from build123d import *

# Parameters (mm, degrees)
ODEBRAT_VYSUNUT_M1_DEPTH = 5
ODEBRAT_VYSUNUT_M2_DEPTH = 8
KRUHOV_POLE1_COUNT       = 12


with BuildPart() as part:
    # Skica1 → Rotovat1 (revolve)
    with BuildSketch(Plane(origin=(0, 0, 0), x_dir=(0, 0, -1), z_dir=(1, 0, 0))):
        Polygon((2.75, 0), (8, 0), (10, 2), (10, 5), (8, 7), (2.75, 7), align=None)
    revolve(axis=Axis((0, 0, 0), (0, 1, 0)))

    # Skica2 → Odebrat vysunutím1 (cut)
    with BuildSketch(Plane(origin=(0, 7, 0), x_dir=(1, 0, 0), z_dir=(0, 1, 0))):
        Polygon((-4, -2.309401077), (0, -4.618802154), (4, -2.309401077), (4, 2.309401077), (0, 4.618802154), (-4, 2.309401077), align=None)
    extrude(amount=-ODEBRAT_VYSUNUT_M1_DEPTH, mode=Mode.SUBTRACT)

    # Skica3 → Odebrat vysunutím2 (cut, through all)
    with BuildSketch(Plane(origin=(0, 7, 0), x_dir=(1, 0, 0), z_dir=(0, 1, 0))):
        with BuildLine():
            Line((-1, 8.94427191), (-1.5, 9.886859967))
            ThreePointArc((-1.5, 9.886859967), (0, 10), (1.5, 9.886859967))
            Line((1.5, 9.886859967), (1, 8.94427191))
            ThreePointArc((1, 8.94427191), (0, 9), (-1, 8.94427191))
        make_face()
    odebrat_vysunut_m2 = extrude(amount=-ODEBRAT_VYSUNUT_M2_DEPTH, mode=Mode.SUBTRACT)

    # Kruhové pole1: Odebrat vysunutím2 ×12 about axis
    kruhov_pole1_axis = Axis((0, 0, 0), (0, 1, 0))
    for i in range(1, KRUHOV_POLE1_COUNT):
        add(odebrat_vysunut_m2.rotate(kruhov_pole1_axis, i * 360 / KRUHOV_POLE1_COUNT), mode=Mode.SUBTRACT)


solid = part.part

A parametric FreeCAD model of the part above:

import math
import FreeCAD as App
import Part
import Sketcher
Q = App.Units.Quantity


def add_polygon(sketch, points):
    """Adds a closed chain of lines whose ends are joined by coincident constraints."""
    first, n = sketch.GeometryCount, len(points)
    for a, b in zip(points, points[1:] + points[:1]):
        sketch.addGeometry(Part.LineSegment(App.Vector(*a, 0), App.Vector(*b, 0)), False)
    for i in range(n):
        sketch.addConstraint(Sketcher.Constraint("Coincident", first + i, 2, first + (i + 1) % n, 1))

doc = App.newDocument("Part")
body = doc.addObject("PartDesign::Body", "Body")

# Sketch on YZ plane
sketch1 = body.newObject("Sketcher::SketchObject", "Sketch")
sketch1.AttachmentSupport = (doc.getObject("YZ_Plane"), [""])
sketch1.MapMode = "FlatFace"
add_polygon(sketch1, [(0, -2.75), (0, -8), (2, -10), (5, -10), (7, -8), (7, -2.75)])  # lines 0-5
sketch1.addConstraint([
    Sketcher.Constraint("Vertical", 0),
    Sketcher.Constraint("Horizontal", 2),
    Sketcher.Constraint("Vertical", 4),
    Sketcher.Constraint("Horizontal", 5),
    Sketcher.Constraint("PointOnObject", 0, 2, -2),
    Sketcher.Constraint("Perpendicular", 1, 3),
    Sketcher.Constraint("Horizontal", 0, 2, 3, 2),
    Sketcher.Constraint("Equal", 1, 3),
    Sketcher.Constraint("DistanceX", 2, 1, 2, 2, Q("3 mm")),
    Sketcher.Constraint("DistanceX", 5, 2, 5, 1, Q("7 mm")),
    Sketcher.Constraint("DistanceY", 0, 2, -1, 1, Q("8 mm")),
    Sketcher.Constraint("DistanceY", 0, 2, 0, 1, Q("5.25 mm")),
])
revolution = body.newObject("PartDesign::Revolution", "Revolution")
revolution.Profile = sketch1
revolution.ReferenceAxis = (sketch1, ["H_Axis"])
revolution.Angle = 360

# Sketch on XZ plane
sketch2 = body.newObject("Sketcher::SketchObject", "Sketch001")
sketch2.AttachmentSupport = (doc.getObject("XZ_Plane"), [""])
sketch2.MapMode = "FlatFace"
sketch2.AttachmentOffset = App.Placement(App.Vector(0, 0, -7), App.Rotation())
add_polygon(sketch2, [(-4, 2.309401), (0, 4.618802), (4, 2.309401), (4, -2.309401), (0, -4.618802), (-4, -2.309401)])  # lines 0-5
sketch2.addConstraint([
    Sketcher.Constraint("Vertical", 2),
    Sketcher.Constraint("Vertical", 5),
    Sketcher.Constraint("Symmetric", 0, 2, 3, 2, -1, 1),
    Sketcher.Constraint("Symmetric", 1, 2, 4, 2, -1, 1),
    Sketcher.Constraint("PointOnObject", 0, 2, -2),
    Sketcher.Constraint("Parallel", 0, 3),
    Sketcher.Constraint("Horizontal", 2, 2, 4, 2),
    Sketcher.Constraint("Angle", 0, Q("30 deg")),
    Sketcher.Constraint("DistanceX", -1, 1, 1, 2, Q("4 mm")),
    Sketcher.Constraint("DistanceY", -1, 1, 1, 2, Q("2.309401 mm")),
])
pocket1 = body.newObject("PartDesign::Pocket", "Pocket")
pocket1.Profile = sketch2
pocket1.Length = 5
pocket1.Reversed = True

# Sketch on XZ plane
sketch3 = body.newObject("Sketcher::SketchObject", "Sketch002")
sketch3.AttachmentSupport = (doc.getObject("XZ_Plane"), [""])
sketch3.MapMode = "FlatFace"
sketch3.AttachmentOffset = App.Placement(App.Vector(0, 0, -7), App.Rotation())
sketch3.addGeometry([
    Part.LineSegment(App.Vector(-1.5, -9.88686, 0), App.Vector(-1, -8.944272, 0)),
    Part.ArcOfCircle(Part.Circle(App.Vector(0, 0, 0), App.Vector(0, 0, 1), 9), math.radians(-96.37937), math.radians(-83.62063)),
    Part.LineSegment(App.Vector(1, -8.944272, 0), App.Vector(1.5, -9.88686, 0)),
    Part.ArcOfCircle(Part.Circle(App.Vector(0, 0, 0), App.Vector(0, 0, 1), 10), math.radians(-98.626927), math.radians(-81.373073)),
], False)
sketch3.addConstraint([
    Sketcher.Constraint("Coincident", 0, 2, 1, 1),
    Sketcher.Constraint("Coincident", 1, 2, 2, 1),
    Sketcher.Constraint("Coincident", 2, 2, 3, 2),
    Sketcher.Constraint("Coincident", 3, 1, 0, 1),
    Sketcher.Constraint("Coincident", 1, 3, -1, 1),
    Sketcher.Constraint("Coincident", 3, 3, -1, 1),
    Sketcher.Constraint("Horizontal", 0, 2, 1, 2),
    Sketcher.Constraint("Horizontal", 2, 2, 3, 1),
    Sketcher.Constraint("Radius", 1, Q("9 mm")),
    Sketcher.Constraint("Radius", 3, Q("10 mm")),
    Sketcher.Constraint("DistanceX", 0, 2, -1, 1, Q("1 mm")),
    Sketcher.Constraint("DistanceX", 3, 1, 2, 2, Q("3 mm")),
])
pocket2 = body.newObject("PartDesign::Pocket", "Pocket001")
pocket2.Profile = sketch3
pocket2.Type = "ThroughAll"
pocket2.Reversed = True
doc.recompute()

polarpattern = body.newObject("PartDesign::PolarPattern", "PolarPattern")
polarpattern.Originals = [pocket2]
polarpattern.Axis = (doc.getObject("Y_Axis"), [""])
polarpattern.Angle = 360
polarpattern.Occurrences = 12
body.Tip = polarpattern

doc.recompute()
